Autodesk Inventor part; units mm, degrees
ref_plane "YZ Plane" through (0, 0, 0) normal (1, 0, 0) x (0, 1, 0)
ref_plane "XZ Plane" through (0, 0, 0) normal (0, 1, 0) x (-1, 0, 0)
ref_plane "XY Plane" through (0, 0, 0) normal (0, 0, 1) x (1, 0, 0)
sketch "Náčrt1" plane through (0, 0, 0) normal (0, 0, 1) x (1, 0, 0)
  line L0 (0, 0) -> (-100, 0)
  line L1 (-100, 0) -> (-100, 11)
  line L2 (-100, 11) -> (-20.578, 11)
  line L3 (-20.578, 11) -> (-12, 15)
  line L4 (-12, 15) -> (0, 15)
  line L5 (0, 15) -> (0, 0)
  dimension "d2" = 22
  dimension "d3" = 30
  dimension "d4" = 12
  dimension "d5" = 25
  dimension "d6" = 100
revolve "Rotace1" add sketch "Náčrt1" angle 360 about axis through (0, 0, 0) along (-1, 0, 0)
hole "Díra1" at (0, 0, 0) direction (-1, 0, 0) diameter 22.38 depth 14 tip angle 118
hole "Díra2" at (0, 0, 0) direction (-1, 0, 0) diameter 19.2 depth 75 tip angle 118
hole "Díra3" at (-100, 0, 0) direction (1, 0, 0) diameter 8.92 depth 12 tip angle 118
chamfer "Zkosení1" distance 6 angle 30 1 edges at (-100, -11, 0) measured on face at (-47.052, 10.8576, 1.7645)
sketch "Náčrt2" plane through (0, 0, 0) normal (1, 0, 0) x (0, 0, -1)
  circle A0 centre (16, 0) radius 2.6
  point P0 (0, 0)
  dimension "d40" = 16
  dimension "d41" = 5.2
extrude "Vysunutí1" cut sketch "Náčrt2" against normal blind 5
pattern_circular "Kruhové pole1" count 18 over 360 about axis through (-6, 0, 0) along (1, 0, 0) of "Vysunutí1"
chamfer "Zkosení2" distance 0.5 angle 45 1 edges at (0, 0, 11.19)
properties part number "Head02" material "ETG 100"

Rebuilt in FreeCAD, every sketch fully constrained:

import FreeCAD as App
import Part
import Sketcher

V = App.Vector
Q = App.Units.Quantity


def edges_at(feature, points):
    """Names of the edges that pass closest to the given points."""
    edges = feature.Shape.Edges
    near = lambda p: min(range(len(edges)), key=lambda i: edges[i].distToShape(Part.Vertex(*p))[0])
    return sorted({f"Edge{near(p) + 1}" for p in points})

doc = App.newDocument("Part")
body = doc.addObject("PartDesign::Body", "Body")

# Sketch on XY plane
sketch1 = body.newObject("Sketcher::SketchObject", "Sketch")
sketch1.AttachmentSupport = (doc.getObject("XY_Plane"), [""])
sketch1.MapMode = "FlatFace"
sketch1.addGeometry([
    Part.LineSegment(V(-100, 0, 0), V(0, 0, 0)),  # 0
    Part.LineSegment(V(0, 0, 0), V(0, 15, 0)),  # 1
    Part.LineSegment(V(0, 15, 0), V(-12, 15, 0)),  # 2
    Part.LineSegment(V(-12, 15, 0), V(-20.578, 11, 0)),  # 3
    Part.LineSegment(V(-20.578, 11, 0), V(-100, 11, 0)),  # 4
    Part.LineSegment(V(-100, 11, 0), V(-100, 0, 0)),  # 5
], False)
sketch1.addConstraint([
    Sketcher.Constraint("Coincident", 0, 2, 1, 1),
    Sketcher.Constraint("Coincident", 1, 2, 2, 1),
    Sketcher.Constraint("Coincident", 2, 2, 3, 1),
    Sketcher.Constraint("Coincident", 3, 2, 4, 1),
    Sketcher.Constraint("Coincident", 4, 2, 5, 1),
    Sketcher.Constraint("Coincident", 5, 2, 0, 1),
    Sketcher.Constraint("Horizontal", 0),
    Sketcher.Constraint("Vertical", 1),
    Sketcher.Constraint("Horizontal", 2),
    Sketcher.Constraint("Horizontal", 4),
    Sketcher.Constraint("Vertical", 5),
    Sketcher.Constraint("Coincident", 0, 2, -1, 1),
    Sketcher.Constraint("DistanceX", 0, 1, 0, 2, 100.0),
    Sketcher.Constraint("DistanceX", 2, 2, 2, 1, 12.0),
    Sketcher.Constraint("DistanceY", 1, 1, 1, 2, 15.0),
    Sketcher.Constraint("DistanceY", 5, 2, 5, 1, 11.0),
    Sketcher.Constraint("Angle", 3, Q("-155 deg")),
])
revolution = body.newObject("PartDesign::Revolution", "Revolution")
revolution.Profile = sketch1
revolution.ReferenceAxis = (sketch1, ["H_Axis"])
revolution.Angle = 360

# Sketch on YZ plane
sketch2 = body.newObject("Sketcher::SketchObject", "Sketch001")
sketch2.AttachmentSupport = (doc.getObject("YZ_Plane"), [""])
sketch2.MapMode = "FlatFace"
sketch2.addGeometry(Part.Circle(V(0, 0, 0), V(0, 0, 1), 11.19), False)
sketch2.addConstraint([
    Sketcher.Constraint("Coincident", 0, 3, -1, 1),
    Sketcher.Constraint("Diameter", 0, 22.38),
])
doc.recompute()
hole = body.newObject("PartDesign::Hole", "Hole")
hole.Profile = sketch2
hole.ThreadType = "None"
hole.Diameter = 22.38
hole.DepthType = "Dimension"
hole.Depth = 14
hole.DrillPoint = "Angled"
hole.DrillPointAngle = 118

# Sketch on YZ plane
sketch3 = body.newObject("Sketcher::SketchObject", "Sketch002")
sketch3.AttachmentSupport = (doc.getObject("YZ_Plane"), [""])
sketch3.MapMode = "FlatFace"
sketch3.addGeometry(Part.Circle(V(0, 0, 0), V(0, 0, 1), 9.6), False)
sketch3.addConstraint([
    Sketcher.Constraint("Coincident", 0, 3, -1, 1),
    Sketcher.Constraint("Diameter", 0, 19.2),
])
doc.recompute()
hole2 = body.newObject("PartDesign::Hole", "Hole001")
hole2.Profile = sketch3
hole2.ThreadType = "None"
hole2.Diameter = 19.2
hole2.DepthType = "Dimension"
hole2.Depth = 75
hole2.DrillPoint = "Angled"
hole2.DrillPointAngle = 118

# Sketch on YZ plane
sketch4 = body.newObject("Sketcher::SketchObject", "Sketch003")
sketch4.AttachmentSupport = (doc.getObject("YZ_Plane"), [""])
sketch4.MapMode = "FlatFace"
sketch4.AttachmentOffset = App.Placement(V(0, 0, -100), App.Rotation())
sketch4.addGeometry(Part.Circle(V(0, 0, 0), V(0, 0, 1), 4.46), False)
sketch4.addConstraint([
    Sketcher.Constraint("Coincident", 0, 3, -1, 1),
    Sketcher.Constraint("Diameter", 0, 8.92),
])
doc.recompute()
hole3 = body.newObject("PartDesign::Hole", "Hole002")
hole3.Profile = sketch4
hole3.ThreadType = "None"
hole3.Diameter = 8.92
hole3.DepthType = "Dimension"
hole3.Depth = 12
hole3.DrillPoint = "Angled"
hole3.DrillPointAngle = 118
hole3.Reversed = True
doc.recompute()

chamfer = body.newObject("PartDesign::Chamfer", "Chamfer")
chamfer.Base = (hole3, edges_at(hole3, [(-100, -11, 0)]))
chamfer.ChamferType = "Distance and Angle"
chamfer.Size = 6
chamfer.Angle = 30

# Sketch on YZ plane
sketch5 = body.newObject("Sketcher::SketchObject", "Sketch004")
sketch5.AttachmentSupport = (doc.getObject("YZ_Plane"), [""])
sketch5.MapMode = "FlatFace"
sketch5.addGeometry(Part.Circle(V(0, -16, 0), V(0, 0, 1), 2.6), False)
sketch5.addConstraint([
    Sketcher.Constraint("PointOnObject", 0, 3, -2),
    Sketcher.Constraint("Diameter", 0, 5.2),
    Sketcher.Constraint("DistanceY", 0, 3, -1, 1, 16.0),
])
pocket1 = body.newObject("PartDesign::Pocket", "Pocket")
pocket1.Profile = sketch5
pocket1.Length = 5
doc.recompute()

polarpattern = body.newObject("PartDesign::PolarPattern", "PolarPattern")
polarpattern.Originals = [pocket1]
polarpattern.Axis = (doc.getObject("X_Axis"), [""])
polarpattern.Angle = 360
polarpattern.Occurrences = 18
body.Tip = polarpattern
doc.recompute()

chamfer2 = body.newObject("PartDesign::Chamfer", "Chamfer001")
chamfer2.Base = (polarpattern, edges_at(polarpattern, [(0, 0, 11.19)]))
chamfer2.Size = 0.5

doc.recompute()
